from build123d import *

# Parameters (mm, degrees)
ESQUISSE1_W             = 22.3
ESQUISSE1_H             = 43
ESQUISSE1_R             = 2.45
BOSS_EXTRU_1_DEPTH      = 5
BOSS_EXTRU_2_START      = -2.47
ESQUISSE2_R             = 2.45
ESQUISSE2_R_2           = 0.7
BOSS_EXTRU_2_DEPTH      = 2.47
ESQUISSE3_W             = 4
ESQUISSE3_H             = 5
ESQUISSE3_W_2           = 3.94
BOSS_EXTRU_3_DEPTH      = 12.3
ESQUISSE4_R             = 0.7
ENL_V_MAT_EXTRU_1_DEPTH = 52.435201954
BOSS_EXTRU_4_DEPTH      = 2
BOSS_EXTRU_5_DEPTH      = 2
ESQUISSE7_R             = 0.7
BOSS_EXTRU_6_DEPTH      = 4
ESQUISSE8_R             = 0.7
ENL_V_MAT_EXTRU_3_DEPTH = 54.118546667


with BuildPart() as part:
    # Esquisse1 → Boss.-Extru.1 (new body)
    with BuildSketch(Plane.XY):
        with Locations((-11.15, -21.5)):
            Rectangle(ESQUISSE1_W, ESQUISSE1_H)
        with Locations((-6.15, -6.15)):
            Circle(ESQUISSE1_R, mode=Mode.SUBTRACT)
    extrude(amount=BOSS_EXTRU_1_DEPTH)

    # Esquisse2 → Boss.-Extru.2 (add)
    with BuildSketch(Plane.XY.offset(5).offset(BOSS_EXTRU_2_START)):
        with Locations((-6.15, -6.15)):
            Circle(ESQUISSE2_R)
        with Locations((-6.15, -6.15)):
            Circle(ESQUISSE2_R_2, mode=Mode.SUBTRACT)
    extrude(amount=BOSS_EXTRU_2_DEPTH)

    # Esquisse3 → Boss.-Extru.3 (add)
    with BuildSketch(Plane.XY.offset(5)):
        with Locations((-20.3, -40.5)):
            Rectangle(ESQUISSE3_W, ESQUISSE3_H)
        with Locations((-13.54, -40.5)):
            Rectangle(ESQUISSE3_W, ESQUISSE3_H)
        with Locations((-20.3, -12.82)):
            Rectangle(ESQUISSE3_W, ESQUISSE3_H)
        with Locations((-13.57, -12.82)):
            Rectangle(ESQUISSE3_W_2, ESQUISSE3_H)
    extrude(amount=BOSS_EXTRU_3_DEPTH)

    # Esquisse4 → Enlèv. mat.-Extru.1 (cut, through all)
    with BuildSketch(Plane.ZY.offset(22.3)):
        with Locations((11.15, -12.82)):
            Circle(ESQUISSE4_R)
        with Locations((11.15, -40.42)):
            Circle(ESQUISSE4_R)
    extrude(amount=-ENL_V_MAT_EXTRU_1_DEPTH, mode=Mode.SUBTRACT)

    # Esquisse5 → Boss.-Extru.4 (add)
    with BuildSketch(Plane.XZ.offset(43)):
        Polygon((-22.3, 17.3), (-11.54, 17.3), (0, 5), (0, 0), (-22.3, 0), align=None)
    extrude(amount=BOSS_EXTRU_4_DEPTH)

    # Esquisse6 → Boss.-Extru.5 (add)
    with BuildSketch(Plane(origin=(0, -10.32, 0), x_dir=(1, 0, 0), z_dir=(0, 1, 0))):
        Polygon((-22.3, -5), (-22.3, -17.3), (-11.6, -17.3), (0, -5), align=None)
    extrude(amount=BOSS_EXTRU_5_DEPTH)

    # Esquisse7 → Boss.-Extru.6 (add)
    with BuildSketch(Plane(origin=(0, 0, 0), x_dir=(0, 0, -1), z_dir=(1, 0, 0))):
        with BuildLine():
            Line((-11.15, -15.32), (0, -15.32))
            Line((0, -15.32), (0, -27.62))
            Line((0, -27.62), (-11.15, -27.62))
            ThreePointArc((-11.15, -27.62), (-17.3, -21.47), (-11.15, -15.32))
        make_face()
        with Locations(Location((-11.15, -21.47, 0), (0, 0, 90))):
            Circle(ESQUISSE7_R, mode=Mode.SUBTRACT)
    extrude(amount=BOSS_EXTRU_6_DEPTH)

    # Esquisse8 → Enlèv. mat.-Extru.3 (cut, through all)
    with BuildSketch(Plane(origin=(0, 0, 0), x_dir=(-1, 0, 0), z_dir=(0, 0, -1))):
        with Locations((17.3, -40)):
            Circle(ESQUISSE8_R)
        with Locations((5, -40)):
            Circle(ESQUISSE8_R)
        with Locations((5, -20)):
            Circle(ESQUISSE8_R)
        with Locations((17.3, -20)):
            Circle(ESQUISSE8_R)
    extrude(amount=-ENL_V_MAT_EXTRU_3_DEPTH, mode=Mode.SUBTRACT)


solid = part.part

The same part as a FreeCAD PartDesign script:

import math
import FreeCAD as App
import Part
import Sketcher
from FreeCAD import Vector
Q = App.Units.Quantity

doc = App.newDocument("Part")
body = doc.addObject("PartDesign::Body", "Body")

sketch1 = doc.addObject("Sketcher::SketchObject", "Sketch")
body.addObject(sketch1)
sketch1.AttachmentSupport = (doc.XY_Plane, [""])
sketch1.MapMode = "FlatFace"
sketch1.addGeometry([
    Part.LineSegment(Vector(-22.3, 0, 0), Vector(-22.3, -43, 0)),
    Part.LineSegment(Vector(-22.3, -43, 0), Vector(0, -43, 0)),
    Part.LineSegment(Vector(0, -43, 0), Vector(0, 0, 0)),
    Part.LineSegment(Vector(0, 0, 0), Vector(-22.3, 0, 0)),
    Part.Circle(Vector(-6.2, -6.2, 0), Vector(0, 0, 1), 2.5),
], False)
sketch1.addConstraint([
    Sketcher.Constraint("Coincident", 0, 2, 1, 1),
    Sketcher.Constraint("Coincident", 1, 2, 2, 1),
    Sketcher.Constraint("Coincident", 2, 2, 3, 1),
    Sketcher.Constraint("Coincident", 3, 2, 0, 1),
    Sketcher.Constraint("Vertical", 0),
    Sketcher.Constraint("Horizontal", 1),
    Sketcher.Constraint("Vertical", 2),
    Sketcher.Constraint("Horizontal", 3),
    Sketcher.Constraint("Coincident", 2, 2, -1, 1),
    Sketcher.Constraint("Diameter", 4, Q("4.9 mm")),
    Sketcher.Constraint("DistanceY", 0, 2, 0, 1, Q("43 mm")),
    Sketcher.Constraint("DistanceX", 1, 1, 1, 2, Q("22.3 mm")),
    Sketcher.Constraint("DistanceX", 4, 3, -1, 1, Q("6.15 mm")),
    Sketcher.Constraint("DistanceY", 4, 3, -1, 1, Q("6.15 mm")),
])
pad1 = doc.addObject("PartDesign::Pad", "Pad")
body.addObject(pad1)
pad1.Profile = sketch1
pad1.Length = 5

sketch2 = doc.addObject("Sketcher::SketchObject", "Sketch001")
body.addObject(sketch2)
sketch2.AttachmentSupport = (doc.XY_Plane, [""])
sketch2.MapMode = "FlatFace"
sketch2.AttachmentOffset = App.Placement(Vector(0, 0, 2.53), App.Rotation())
sketch2.addGeometry([
    Part.Circle(Vector(-6.2, -6.2, 0), Vector(0, 0, 1), 2.5),
    Part.Circle(Vector(-6.2, -6.2, 0), Vector(0, 0, 1), 0.7),
], False)
sketch2.addConstraint([
    Sketcher.Constraint("Coincident", 1, 3, 0, 3),
    Sketcher.Constraint("Diameter", 0, Q("4.9 mm")),
    Sketcher.Constraint("Diameter", 1, Q("1.4 mm")),
    Sketcher.Constraint("DistanceX", 0, 3, -1, 1, Q("6.15 mm")),
    Sketcher.Constraint("DistanceY", 0, 3, -1, 1, Q("6.15 mm")),
])
pad2 = doc.addObject("PartDesign::Pad", "Pad001")
body.addObject(pad2)
pad2.Profile = sketch2
pad2.Length = 2.47

sketch3 = doc.addObject("Sketcher::SketchObject", "Sketch002")
body.addObject(sketch3)
sketch3.AttachmentSupport = (doc.XY_Plane, [""])
sketch3.MapMode = "FlatFace"
sketch3.AttachmentOffset = App.Placement(Vector(0, 0, 5), App.Rotation())
sketch3.addGeometry([
    Part.LineSegment(Vector(-22.3, -38, 0), Vector(-22.3, -43, 0)),
    Part.LineSegment(Vector(-22.3, -43, 0), Vector(-18.3, -43, 0)),
    Part.LineSegment(Vector(-18.3, -43, 0), Vector(-18.3, -38, 0)),
    Part.LineSegment(Vector(-18.3, -38, 0), Vector(-22.3, -38, 0)),
    Part.LineSegment(Vector(-15.5, -38, 0), Vector(-15.5, -43, 0)),
    Part.LineSegment(Vector(-15.5, -43, 0), Vector(-11.5, -43, 0)),
    Part.LineSegment(Vector(-11.5, -43, 0), Vector(-11.5, -38, 0)),
    Part.LineSegment(Vector(-11.5, -38, 0), Vector(-15.5, -38, 0)),
    Part.LineSegment(Vector(-22.3, -10.3, 0), Vector(-22.3, -15.3, 0)),
    Part.LineSegment(Vector(-22.3, -15.3, 0), Vector(-18.3, -15.3, 0)),
    Part.LineSegment(Vector(-18.3, -15.3, 0), Vector(-18.3, -10.3, 0)),
    Part.LineSegment(Vector(-18.3, -10.3, 0), Vector(-22.3, -10.3, 0)),
    Part.LineSegment(Vector(-15.5, -10.3, 0), Vector(-15.5, -15.3, 0)),
    Part.LineSegment(Vector(-15.5, -15.3, 0), Vector(-11.6, -15.3, 0)),
    Part.LineSegment(Vector(-11.6, -15.3, 0), Vector(-11.6, -10.3, 0)),
    Part.LineSegment(Vector(-11.6, -10.3, 0), Vector(-15.5, -10.3, 0)),
], False)
sketch3.addConstraint([
    Sketcher.Constraint("Coincident", 0, 2, 1, 1),
    Sketcher.Constraint("Coincident", 1, 2, 2, 1),
    Sketcher.Constraint("Coincident", 2, 2, 3, 1),
    Sketcher.Constraint("Coincident", 3, 2, 0, 1),
    Sketcher.Constraint("Coincident", 4, 2, 5, 1),
    Sketcher.Constraint("Coincident", 5, 2, 6, 1),
    Sketcher.Constraint("Coincident", 6, 2, 7, 1),
    Sketcher.Constraint("Coincident", 7, 2, 4, 1),
    Sketcher.Constraint("Coincident", 8, 2, 9, 1),
    Sketcher.Constraint("Coincident", 9, 2, 10, 1),
    Sketcher.Constraint("Coincident", 10, 2, 11, 1),
    Sketcher.Constraint("Coincident", 11, 2, 8, 1),
    Sketcher.Constraint("Coincident", 12, 2, 13, 1),
    Sketcher.Constraint("Coincident", 13, 2, 14, 1),
    Sketcher.Constraint("Coincident", 14, 2, 15, 1),
    Sketcher.Constraint("Coincident", 15, 2, 12, 1),
    Sketcher.Constraint("Vertical", 0),
    Sketcher.Constraint("Horizontal", 1),
    Sketcher.Constraint("Vertical", 2),
    Sketcher.Constraint("Horizontal", 3),
    Sketcher.Constraint("Vertical", 4),
    Sketcher.Constraint("Horizontal", 5),
    Sketcher.Constraint("Vertical", 6),
    Sketcher.Constraint("Horizontal", 7),
    Sketcher.Constraint("Vertical", 8),
    Sketcher.Constraint("Horizontal", 9),
    Sketcher.Constraint("Vertical", 10),
    Sketcher.Constraint("Horizontal", 11),
    Sketcher.Constraint("Vertical", 12),
    Sketcher.Constraint("Horizontal", 13),
    Sketcher.Constraint("Vertical", 14),
    Sketcher.Constraint("Horizontal", 15),
    Sketcher.Constraint("Horizontal", 1, 2, 4, 2),
    Sketcher.Constraint("Horizontal", 3, 2, 6, 2),
    Sketcher.Constraint("Horizontal", 9, 2, 12, 2),
    Sketcher.Constraint("Horizontal", 11, 2, 14, 2),
    Sketcher.Constraint("Vertical", 3, 2, 8, 2),
    Sketcher.Constraint("Vertical", 2, 2, 9, 2),
    Sketcher.Constraint("Vertical", 7, 2, 12, 2),
    Sketcher.Constraint("Equal", 3, 5),
    Sketcher.Constraint("Equal", 6, 8),
    Sketcher.Constraint("DistanceX", 1, 1, 1, 2, Q("4 mm")),
    Sketcher.Constraint("DistanceY", 0, 2, 0, 1, Q("5 mm")),
    Sketcher.Constraint("DistanceY", 0, 2, -1, 1, Q("43 mm")),
    Sketcher.Constraint("DistanceX", 13, 1, 13, 2, Q("3.94 mm")),
    Sketcher.Constraint("DistanceX", 0, 2, -1, 1, Q("22.3 mm")),
    Sketcher.Constraint("DistanceX", 13, 2, -1, 1, Q("11.6 mm")),
    Sketcher.Constraint("DistanceY", 8, 2, -1, 1, Q("15.32 mm")),
])
pad3 = doc.addObject("PartDesign::Pad", "Pad002")
body.addObject(pad3)
pad3.Profile = sketch3
pad3.Length = 12.3

sketch4 = doc.addObject("Sketcher::SketchObject", "Sketch003")
body.addObject(sketch4)
sketch4.AttachmentSupport = (doc.YZ_Plane, [""])
sketch4.MapMode = "FlatFace"
sketch4.AttachmentOffset = App.Placement(Vector(0, 0, -22.3), App.Rotation())
sketch4.addGeometry([
    Part.Circle(Vector(-12.8, 11.2, 0), Vector(0, 0, 1), 0.7),
    Part.Circle(Vector(-40.4, 11.2, 0), Vector(0, 0, 1), 0.7),
], False)
sketch4.addConstraint([
    Sketcher.Constraint("Equal", 0, 1),
    Sketcher.Constraint("Horizontal", 0, 3, 1, 3),
    Sketcher.Constraint("Diameter", 0, Q("1.4 mm")),
    Sketcher.Constraint("DistanceX", 1, 3, 0, 3, Q("27.6 mm")),
    Sketcher.Constraint("DistanceX", 0, 3, -1, 1, Q("12.82 mm")),
    Sketcher.Constraint("DistanceY", -1, 1, 0, 3, Q("11.15 mm")),
])
pocket1 = doc.addObject("PartDesign::Pocket", "Pocket")
body.addObject(pocket1)
pocket1.Profile = sketch4
pocket1.Type = "ThroughAll"
pocket1.Reversed = True

sketch5 = doc.addObject("Sketcher::SketchObject", "Sketch004")
body.addObject(sketch5)
sketch5.AttachmentSupport = (doc.XZ_Plane, [""])
sketch5.MapMode = "FlatFace"
sketch5.AttachmentOffset = App.Placement(Vector(0, 0, 43), App.Rotation())
sketch5.addGeometry([
    Part.LineSegment(Vector(-12, 17, 0), Vector(-22, 17, 0)),
    Part.LineSegment(Vector(-22, 17, 0), Vector(-22, 0, 0)),
    Part.LineSegment(Vector(-22, 0, 0), Vector(0, 0, 0)),
    Part.LineSegment(Vector(0, 0, 0), Vector(0, 5, 0)),
    Part.LineSegment(Vector(0, 5, 0), Vector(-12, 17, 0)),
], False)
sketch5.addConstraint([
    Sketcher.Constraint("Coincident", 0, 2, 1, 1),
    Sketcher.Constraint("Coincident", 1, 2, 2, 1),
    Sketcher.Constraint("Coincident", 2, 2, 3, 1),
    Sketcher.Constraint("Coincident", 3, 2, 4, 1),
    Sketcher.Constraint("Coincident", 4, 2, 0, 1),
    Sketcher.Constraint("Horizontal", 0),
    Sketcher.Constraint("Vertical", 1),
    Sketcher.Constraint("Horizontal", 2),
    Sketcher.Constraint("Vertical", 3),
    Sketcher.Constraint("Coincident", 2, 2, -1, 1),
    Sketcher.Constraint("DistanceY", 3, 1, 3, 2, Q("5 mm")),
    Sketcher.Constraint("DistanceX", 2, 1, 2, 2, Q("22.3 mm")),
    Sketcher.Constraint("DistanceY", 1, 2, 1, 1, Q("17.3 mm")),
    Sketcher.Constraint("DistanceX", 0, 2, 0, 1, Q("10.76 mm")),
])
pad4 = doc.addObject("PartDesign::Pad", "Pad003")
body.addObject(pad4)
pad4.Profile = sketch5
pad4.Length = 2

sketch6 = doc.addObject("Sketcher::SketchObject", "Sketch005")
body.addObject(sketch6)
sketch6.AttachmentSupport = (doc.XZ_Plane, [""])
sketch6.MapMode = "FlatFace"
sketch6.AttachmentOffset = App.Placement(Vector(0, 0, 10.32), App.Rotation())
sketch6.addGeometry([
    Part.LineSegment(Vector(-22, 5, 0), Vector(-22, 17, 0)),
    Part.LineSegment(Vector(-22, 17, 0), Vector(-12, 17, 0)),
    Part.LineSegment(Vector(-12, 17, 0), Vector(0, 5, 0)),
    Part.LineSegment(Vector(0, 5, 0), Vector(-22, 5, 0)),
], False)
sketch6.addConstraint([
    Sketcher.Constraint("Coincident", 0, 2, 1, 1),
    Sketcher.Constraint("Coincident", 1, 2, 2, 1),
    Sketcher.Constraint("Coincident", 2, 2, 3, 1),
    Sketcher.Constraint("Coincident", 3, 2, 0, 1),
    Sketcher.Constraint("Vertical", 0),
    Sketcher.Constraint("Horizontal", 1),
    Sketcher.Constraint("Horizontal", 3),
    Sketcher.Constraint("PointOnObject", 2, 2, -2),
    Sketcher.Constraint("DistanceX", 1, 1, 1, 2, Q("10.7 mm")),
    Sketcher.Constraint("DistanceX", 3, 2, 3, 1, Q("22.3 mm")),
    Sketcher.Constraint("DistanceY", 0, 1, 0, 2, Q("12.3 mm")),
    Sketcher.Constraint("DistanceY", -1, 1, 2, 2, Q("5 mm")),
])
pad5 = doc.addObject("PartDesign::Pad", "Pad004")
body.addObject(pad5)
pad5.Profile = sketch6
pad5.Length = 2
pad5.Reversed = True

sketch7 = doc.addObject("Sketcher::SketchObject", "Sketch006")
body.addObject(sketch7)
sketch7.AttachmentSupport = (doc.YZ_Plane, [""])
sketch7.MapMode = "FlatFace"
sketch7.addGeometry([
    Part.LineSegment(Vector(-15.3, 0, 0), Vector(-15.3, 11.2, 0)),
    Part.ArcOfCircle(Part.Circle(Vector(-21.5, 11.2, 0), Vector(0, 0, 1), 6.2), math.radians(0), math.radians(180)),
    Part.LineSegment(Vector(-27.6, 11.2, 0), Vector(-27.6, 0, 0)),
    Part.LineSegment(Vector(-27.6, 0, 0), Vector(-15.3, 0, 0)),
    Part.Circle(Vector(-21.5, 11.2, 0), Vector(0, 0, 1), 0.7),
], False)
sketch7.addConstraint([
    Sketcher.Constraint("Tangent", 0, 2, 1, 1),
    Sketcher.Constraint("Tangent", 1, 2, 2, 1),
    Sketcher.Constraint("Coincident", 2, 2, 3, 1),
    Sketcher.Constraint("Coincident", 3, 2, 0, 1),
    Sketcher.Constraint("Vertical", 0),
    Sketcher.Constraint("Vertical", 2),
    Sketcher.Constraint("Horizontal", 3),
    Sketcher.Constraint("Coincident", 4, 3, 1, 3),
    Sketcher.Constraint("PointOnObject", 2, 2, -1),
    Sketcher.Constraint("Diameter", 4, Q("1.4 mm")),
    Sketcher.Constraint("Radius", 1, Q("6.15 mm")),
    Sketcher.Constraint("DistanceY", 0, 1, 0, 2, Q("11.15 mm")),
    Sketcher.Constraint("DistanceX", 1, 3, -1, 1, Q("21.47 mm")),
])
pad6 = doc.addObject("PartDesign::Pad", "Pad005")
body.addObject(pad6)
pad6.Profile = sketch7
pad6.Length = 4

sketch8 = doc.addObject("Sketcher::SketchObject", "Sketch007")
body.addObject(sketch8)
sketch8.AttachmentSupport = (doc.XY_Plane, [""])
sketch8.MapMode = "FlatFace"
sketch8.addGeometry([
    Part.Circle(Vector(-17.3, -40, 0), Vector(0, 0, 1), 0.7),
    Part.Circle(Vector(-5, -40, 0), Vector(0, 0, 1), 0.7),
    Part.Circle(Vector(-5, -20, 0), Vector(0, 0, 1), 0.7),
    Part.Circle(Vector(-17.3, -20, 0), Vector(0, 0, 1), 0.7),
], False)
sketch8.addConstraint([
    Sketcher.Constraint("Equal", 0, 1),
    Sketcher.Constraint("Equal", 1, 2),
    Sketcher.Constraint("Equal", 2, 3),
    Sketcher.Constraint("Horizontal", 0, 3, 1, 3),
    Sketcher.Constraint("Horizontal", 2, 3, 3, 3),
    Sketcher.Constraint("Vertical", 1, 3, 2, 3),
    Sketcher.Constraint("Vertical", 0, 3, 3, 3),
    Sketcher.Constraint("Diameter", 0, Q("1.4 mm")),
    Sketcher.Constraint("DistanceY", 0, 3, -1, 1, Q("40 mm")),
    Sketcher.Constraint("DistanceX", 1, 3, -1, 1, Q("5 mm")),
    Sketcher.Constraint("DistanceY", 2, 3, -1, 1, Q("20 mm")),
    Sketcher.Constraint("DistanceX", 0, 3, -1, 1, Q("17.3 mm")),
])
pocket2 = doc.addObject("PartDesign::Pocket", "Pocket001")
body.addObject(pocket2)
pocket2.Profile = sketch8
pocket2.Type = "ThroughAll"
pocket2.Reversed = True

doc.recompute()
